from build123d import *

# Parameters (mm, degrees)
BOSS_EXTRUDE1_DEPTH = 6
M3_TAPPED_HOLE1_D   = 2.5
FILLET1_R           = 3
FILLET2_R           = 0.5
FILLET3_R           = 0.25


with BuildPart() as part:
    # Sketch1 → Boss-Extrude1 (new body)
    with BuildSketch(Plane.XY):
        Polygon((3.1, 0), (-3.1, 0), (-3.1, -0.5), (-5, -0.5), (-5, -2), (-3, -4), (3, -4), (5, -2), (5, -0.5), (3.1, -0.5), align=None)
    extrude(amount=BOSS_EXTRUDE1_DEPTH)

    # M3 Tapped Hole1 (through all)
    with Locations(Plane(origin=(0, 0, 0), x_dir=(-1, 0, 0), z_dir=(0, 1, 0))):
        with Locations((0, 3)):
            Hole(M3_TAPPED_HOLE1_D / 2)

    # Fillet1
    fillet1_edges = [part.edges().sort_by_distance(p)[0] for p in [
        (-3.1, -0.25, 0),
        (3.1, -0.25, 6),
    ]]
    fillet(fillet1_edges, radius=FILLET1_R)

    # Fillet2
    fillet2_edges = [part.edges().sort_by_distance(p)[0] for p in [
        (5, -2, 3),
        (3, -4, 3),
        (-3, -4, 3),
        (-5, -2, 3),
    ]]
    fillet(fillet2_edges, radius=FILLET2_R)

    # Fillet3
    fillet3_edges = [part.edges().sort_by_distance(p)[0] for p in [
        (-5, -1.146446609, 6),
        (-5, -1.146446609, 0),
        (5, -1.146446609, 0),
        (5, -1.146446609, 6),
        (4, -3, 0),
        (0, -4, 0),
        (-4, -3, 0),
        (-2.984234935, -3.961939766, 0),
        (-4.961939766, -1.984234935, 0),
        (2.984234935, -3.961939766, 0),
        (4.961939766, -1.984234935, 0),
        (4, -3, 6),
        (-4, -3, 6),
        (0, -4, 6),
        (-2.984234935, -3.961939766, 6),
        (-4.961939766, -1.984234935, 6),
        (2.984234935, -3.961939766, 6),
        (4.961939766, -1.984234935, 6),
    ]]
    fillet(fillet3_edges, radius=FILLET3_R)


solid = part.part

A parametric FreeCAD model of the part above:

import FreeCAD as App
import Part
import Sketcher
from FreeCAD import Vector


def edges_at(feature, points):
    """Names of the edges that pass closest to the given points."""
    edges = feature.Shape.Edges
    near = lambda p: min(range(len(edges)), key=lambda i: edges[i].distToShape(Part.Vertex(*p))[0])
    return sorted({f"Edge{near(p) + 1}" for p in points})

doc = App.newDocument("Part")
body = doc.addObject("PartDesign::Body", "Body")

# Sketch on XY plane
sketch1 = doc.addObject("Sketcher::SketchObject", "Sketch")
body.addObject(sketch1)
sketch1.AttachmentSupport = (doc.XY_Plane, [""])
sketch1.MapMode = "FlatFace"
sketch1.addGeometry(Part.LineSegment(Vector(3.1, 0, 0), Vector(-3.1, 0, 0)), False)
sketch1.addGeometry(Part.LineSegment(Vector(-3.1, 0, 0), Vector(-3.1, -0.5, 0)), False)
sketch1.addGeometry(Part.LineSegment(Vector(-3.1, -0.5, 0), Vector(-5, -0.5, 0)), False)
sketch1.addGeometry(Part.LineSegment(Vector(-5, -0.5, 0), Vector(-5, -2, 0)), False)
sketch1.addGeometry(Part.LineSegment(Vector(-5, -2, 0), Vector(-3, -4, 0)), False)
sketch1.addGeometry(Part.LineSegment(Vector(-3, -4, 0), Vector(3, -4, 0)), False)
sketch1.addGeometry(Part.LineSegment(Vector(3, -4, 0), Vector(5, -2, 0)), False)
sketch1.addGeometry(Part.LineSegment(Vector(5, -2, 0), Vector(5, -0.5, 0)), False)
sketch1.addGeometry(Part.LineSegment(Vector(5, -0.5, 0), Vector(3.1, -0.5, 0)), False)
sketch1.addGeometry(Part.LineSegment(Vector(3.1, -0.5, 0), Vector(3.1, 0, 0)), False)
sketch1.addConstraint(Sketcher.Constraint("Coincident", 0, 2, 1, 1))
sketch1.addConstraint(Sketcher.Constraint("Coincident", 1, 2, 2, 1))
sketch1.addConstraint(Sketcher.Constraint("Coincident", 2, 2, 3, 1))
sketch1.addConstraint(Sketcher.Constraint("Coincident", 3, 2, 4, 1))
sketch1.addConstraint(Sketcher.Constraint("Coincident", 4, 2, 5, 1))
sketch1.addConstraint(Sketcher.Constraint("Coincident", 5, 2, 6, 1))
sketch1.addConstraint(Sketcher.Constraint("Coincident", 6, 2, 7, 1))
sketch1.addConstraint(Sketcher.Constraint("Coincident", 7, 2, 8, 1))
sketch1.addConstraint(Sketcher.Constraint("Coincident", 8, 2, 9, 1))
sketch1.addConstraint(Sketcher.Constraint("Coincident", 9, 2, 0, 1))
sketch1.addConstraint(Sketcher.Constraint("Horizontal", 0))
sketch1.addConstraint(Sketcher.Constraint("Vertical", 1))
sketch1.addConstraint(Sketcher.Constraint("Horizontal", 2))
sketch1.addConstraint(Sketcher.Constraint("Vertical", 3))
sketch1.addConstraint(Sketcher.Constraint("Horizontal", 5))
sketch1.addConstraint(Sketcher.Constraint("Vertical", 7))
sketch1.addConstraint(Sketcher.Constraint("Horizontal", 8))
sketch1.addConstraint(Sketcher.Constraint("Vertical", 9))
sketch1.addConstraint(Sketcher.Constraint("Symmetric", 0, 2, 9, 2, -1, 1))
sketch1.addConstraint(Sketcher.Constraint("Symmetric", 3, 2, 6, 2, -2))
sketch1.addConstraint(Sketcher.Constraint("Perpendicular", 4, 6))
sketch1.addConstraint(Sketcher.Constraint("Horizontal", 2, 2, 7, 2))
sketch1.addConstraint(Sketcher.Constraint("Equal", 4, 6))
sketch1.addConstraint(Sketcher.Constraint("DistanceX", 5, 1, 5, 2, 6.0))
sketch1.addConstraint(Sketcher.Constraint("DistanceX", 0, 2, 0, 1, 6.2))
sketch1.addConstraint(Sketcher.Constraint("DistanceX", 2, 2, 2, 1, 1.9))
sketch1.addConstraint(Sketcher.Constraint("DistanceY", 1, 2, 1, 1, 0.5))
sketch1.addConstraint(Sketcher.Constraint("DistanceY", 3, 2, 3, 1, 1.5))
pad1 = doc.addObject("PartDesign::Pad", "Pad")
body.addObject(pad1)
pad1.Profile = sketch1
pad1.Length = 6

# Sketch on XZ plane
sketch2 = doc.addObject("Sketcher::SketchObject", "Sketch001")
body.addObject(sketch2)
sketch2.AttachmentSupport = (doc.XZ_Plane, [""])
sketch2.MapMode = "FlatFace"
sketch2.addGeometry(Part.Circle(Vector(0, 3, 0), Vector(0, 0, 1), 1.2), False)
sketch2.addConstraint(Sketcher.Constraint("PointOnObject", 0, 3, -2))
sketch2.addConstraint(Sketcher.Constraint("Diameter", 0, 2.5))
sketch2.addConstraint(Sketcher.Constraint("DistanceY", -1, 1, 0, 3, 3.0))
doc.recompute()
hole = doc.addObject("PartDesign::Hole", "Hole")
body.addObject(hole)
hole.Profile = sketch2
hole.ThreadType = "None"
hole.Diameter = 2.5
hole.DepthType = "ThroughAll"
hole.Reversed = True
doc.recompute()

fillet = doc.addObject("PartDesign::Fillet", "Fillet")
body.addObject(fillet)
fillet.Base = (hole, edges_at(hole, [(-3.1, -0.25, 0), (3.1, -0.25, 6)]))
fillet.Radius = 3
doc.recompute()

fillet2 = doc.addObject("PartDesign::Fillet", "Fillet001")
body.addObject(fillet2)
fillet2.Base = (fillet, edges_at(fillet, [
    (5, -2, 3),
    (3, -4, 3),
    (-3, -4, 3),
    (-5, -2, 3),
]))
fillet2.Radius = 0.5
doc.recompute()

fillet3 = doc.addObject("PartDesign::Fillet", "Fillet002")
body.addObject(fillet3)
fillet3.Base = (fillet2, edges_at(fillet2, [
    (-5, -1.146, 6),
    (-5, -1.146, 0),
    (5, -1.146, 0),
    (5, -1.146, 6),
    (4, -3, 0),
    (0, -4, 0),
    (-4, -3, 0),
    (-2.984, -3.962, 0),
    (-4.962, -1.984, 0),
    (2.984, -3.962, 0),
    (4.962, -1.984, 0),
    (4, -3, 6),
    (-4, -3, 6),
    (0, -4, 6),
    (-2.984, -3.962, 6),
    (-4.962, -1.984, 6),
    (2.984, -3.962, 6),
    (4.962, -1.984, 6),
]))
fillet3.Radius = 0.25

doc.recompute()
